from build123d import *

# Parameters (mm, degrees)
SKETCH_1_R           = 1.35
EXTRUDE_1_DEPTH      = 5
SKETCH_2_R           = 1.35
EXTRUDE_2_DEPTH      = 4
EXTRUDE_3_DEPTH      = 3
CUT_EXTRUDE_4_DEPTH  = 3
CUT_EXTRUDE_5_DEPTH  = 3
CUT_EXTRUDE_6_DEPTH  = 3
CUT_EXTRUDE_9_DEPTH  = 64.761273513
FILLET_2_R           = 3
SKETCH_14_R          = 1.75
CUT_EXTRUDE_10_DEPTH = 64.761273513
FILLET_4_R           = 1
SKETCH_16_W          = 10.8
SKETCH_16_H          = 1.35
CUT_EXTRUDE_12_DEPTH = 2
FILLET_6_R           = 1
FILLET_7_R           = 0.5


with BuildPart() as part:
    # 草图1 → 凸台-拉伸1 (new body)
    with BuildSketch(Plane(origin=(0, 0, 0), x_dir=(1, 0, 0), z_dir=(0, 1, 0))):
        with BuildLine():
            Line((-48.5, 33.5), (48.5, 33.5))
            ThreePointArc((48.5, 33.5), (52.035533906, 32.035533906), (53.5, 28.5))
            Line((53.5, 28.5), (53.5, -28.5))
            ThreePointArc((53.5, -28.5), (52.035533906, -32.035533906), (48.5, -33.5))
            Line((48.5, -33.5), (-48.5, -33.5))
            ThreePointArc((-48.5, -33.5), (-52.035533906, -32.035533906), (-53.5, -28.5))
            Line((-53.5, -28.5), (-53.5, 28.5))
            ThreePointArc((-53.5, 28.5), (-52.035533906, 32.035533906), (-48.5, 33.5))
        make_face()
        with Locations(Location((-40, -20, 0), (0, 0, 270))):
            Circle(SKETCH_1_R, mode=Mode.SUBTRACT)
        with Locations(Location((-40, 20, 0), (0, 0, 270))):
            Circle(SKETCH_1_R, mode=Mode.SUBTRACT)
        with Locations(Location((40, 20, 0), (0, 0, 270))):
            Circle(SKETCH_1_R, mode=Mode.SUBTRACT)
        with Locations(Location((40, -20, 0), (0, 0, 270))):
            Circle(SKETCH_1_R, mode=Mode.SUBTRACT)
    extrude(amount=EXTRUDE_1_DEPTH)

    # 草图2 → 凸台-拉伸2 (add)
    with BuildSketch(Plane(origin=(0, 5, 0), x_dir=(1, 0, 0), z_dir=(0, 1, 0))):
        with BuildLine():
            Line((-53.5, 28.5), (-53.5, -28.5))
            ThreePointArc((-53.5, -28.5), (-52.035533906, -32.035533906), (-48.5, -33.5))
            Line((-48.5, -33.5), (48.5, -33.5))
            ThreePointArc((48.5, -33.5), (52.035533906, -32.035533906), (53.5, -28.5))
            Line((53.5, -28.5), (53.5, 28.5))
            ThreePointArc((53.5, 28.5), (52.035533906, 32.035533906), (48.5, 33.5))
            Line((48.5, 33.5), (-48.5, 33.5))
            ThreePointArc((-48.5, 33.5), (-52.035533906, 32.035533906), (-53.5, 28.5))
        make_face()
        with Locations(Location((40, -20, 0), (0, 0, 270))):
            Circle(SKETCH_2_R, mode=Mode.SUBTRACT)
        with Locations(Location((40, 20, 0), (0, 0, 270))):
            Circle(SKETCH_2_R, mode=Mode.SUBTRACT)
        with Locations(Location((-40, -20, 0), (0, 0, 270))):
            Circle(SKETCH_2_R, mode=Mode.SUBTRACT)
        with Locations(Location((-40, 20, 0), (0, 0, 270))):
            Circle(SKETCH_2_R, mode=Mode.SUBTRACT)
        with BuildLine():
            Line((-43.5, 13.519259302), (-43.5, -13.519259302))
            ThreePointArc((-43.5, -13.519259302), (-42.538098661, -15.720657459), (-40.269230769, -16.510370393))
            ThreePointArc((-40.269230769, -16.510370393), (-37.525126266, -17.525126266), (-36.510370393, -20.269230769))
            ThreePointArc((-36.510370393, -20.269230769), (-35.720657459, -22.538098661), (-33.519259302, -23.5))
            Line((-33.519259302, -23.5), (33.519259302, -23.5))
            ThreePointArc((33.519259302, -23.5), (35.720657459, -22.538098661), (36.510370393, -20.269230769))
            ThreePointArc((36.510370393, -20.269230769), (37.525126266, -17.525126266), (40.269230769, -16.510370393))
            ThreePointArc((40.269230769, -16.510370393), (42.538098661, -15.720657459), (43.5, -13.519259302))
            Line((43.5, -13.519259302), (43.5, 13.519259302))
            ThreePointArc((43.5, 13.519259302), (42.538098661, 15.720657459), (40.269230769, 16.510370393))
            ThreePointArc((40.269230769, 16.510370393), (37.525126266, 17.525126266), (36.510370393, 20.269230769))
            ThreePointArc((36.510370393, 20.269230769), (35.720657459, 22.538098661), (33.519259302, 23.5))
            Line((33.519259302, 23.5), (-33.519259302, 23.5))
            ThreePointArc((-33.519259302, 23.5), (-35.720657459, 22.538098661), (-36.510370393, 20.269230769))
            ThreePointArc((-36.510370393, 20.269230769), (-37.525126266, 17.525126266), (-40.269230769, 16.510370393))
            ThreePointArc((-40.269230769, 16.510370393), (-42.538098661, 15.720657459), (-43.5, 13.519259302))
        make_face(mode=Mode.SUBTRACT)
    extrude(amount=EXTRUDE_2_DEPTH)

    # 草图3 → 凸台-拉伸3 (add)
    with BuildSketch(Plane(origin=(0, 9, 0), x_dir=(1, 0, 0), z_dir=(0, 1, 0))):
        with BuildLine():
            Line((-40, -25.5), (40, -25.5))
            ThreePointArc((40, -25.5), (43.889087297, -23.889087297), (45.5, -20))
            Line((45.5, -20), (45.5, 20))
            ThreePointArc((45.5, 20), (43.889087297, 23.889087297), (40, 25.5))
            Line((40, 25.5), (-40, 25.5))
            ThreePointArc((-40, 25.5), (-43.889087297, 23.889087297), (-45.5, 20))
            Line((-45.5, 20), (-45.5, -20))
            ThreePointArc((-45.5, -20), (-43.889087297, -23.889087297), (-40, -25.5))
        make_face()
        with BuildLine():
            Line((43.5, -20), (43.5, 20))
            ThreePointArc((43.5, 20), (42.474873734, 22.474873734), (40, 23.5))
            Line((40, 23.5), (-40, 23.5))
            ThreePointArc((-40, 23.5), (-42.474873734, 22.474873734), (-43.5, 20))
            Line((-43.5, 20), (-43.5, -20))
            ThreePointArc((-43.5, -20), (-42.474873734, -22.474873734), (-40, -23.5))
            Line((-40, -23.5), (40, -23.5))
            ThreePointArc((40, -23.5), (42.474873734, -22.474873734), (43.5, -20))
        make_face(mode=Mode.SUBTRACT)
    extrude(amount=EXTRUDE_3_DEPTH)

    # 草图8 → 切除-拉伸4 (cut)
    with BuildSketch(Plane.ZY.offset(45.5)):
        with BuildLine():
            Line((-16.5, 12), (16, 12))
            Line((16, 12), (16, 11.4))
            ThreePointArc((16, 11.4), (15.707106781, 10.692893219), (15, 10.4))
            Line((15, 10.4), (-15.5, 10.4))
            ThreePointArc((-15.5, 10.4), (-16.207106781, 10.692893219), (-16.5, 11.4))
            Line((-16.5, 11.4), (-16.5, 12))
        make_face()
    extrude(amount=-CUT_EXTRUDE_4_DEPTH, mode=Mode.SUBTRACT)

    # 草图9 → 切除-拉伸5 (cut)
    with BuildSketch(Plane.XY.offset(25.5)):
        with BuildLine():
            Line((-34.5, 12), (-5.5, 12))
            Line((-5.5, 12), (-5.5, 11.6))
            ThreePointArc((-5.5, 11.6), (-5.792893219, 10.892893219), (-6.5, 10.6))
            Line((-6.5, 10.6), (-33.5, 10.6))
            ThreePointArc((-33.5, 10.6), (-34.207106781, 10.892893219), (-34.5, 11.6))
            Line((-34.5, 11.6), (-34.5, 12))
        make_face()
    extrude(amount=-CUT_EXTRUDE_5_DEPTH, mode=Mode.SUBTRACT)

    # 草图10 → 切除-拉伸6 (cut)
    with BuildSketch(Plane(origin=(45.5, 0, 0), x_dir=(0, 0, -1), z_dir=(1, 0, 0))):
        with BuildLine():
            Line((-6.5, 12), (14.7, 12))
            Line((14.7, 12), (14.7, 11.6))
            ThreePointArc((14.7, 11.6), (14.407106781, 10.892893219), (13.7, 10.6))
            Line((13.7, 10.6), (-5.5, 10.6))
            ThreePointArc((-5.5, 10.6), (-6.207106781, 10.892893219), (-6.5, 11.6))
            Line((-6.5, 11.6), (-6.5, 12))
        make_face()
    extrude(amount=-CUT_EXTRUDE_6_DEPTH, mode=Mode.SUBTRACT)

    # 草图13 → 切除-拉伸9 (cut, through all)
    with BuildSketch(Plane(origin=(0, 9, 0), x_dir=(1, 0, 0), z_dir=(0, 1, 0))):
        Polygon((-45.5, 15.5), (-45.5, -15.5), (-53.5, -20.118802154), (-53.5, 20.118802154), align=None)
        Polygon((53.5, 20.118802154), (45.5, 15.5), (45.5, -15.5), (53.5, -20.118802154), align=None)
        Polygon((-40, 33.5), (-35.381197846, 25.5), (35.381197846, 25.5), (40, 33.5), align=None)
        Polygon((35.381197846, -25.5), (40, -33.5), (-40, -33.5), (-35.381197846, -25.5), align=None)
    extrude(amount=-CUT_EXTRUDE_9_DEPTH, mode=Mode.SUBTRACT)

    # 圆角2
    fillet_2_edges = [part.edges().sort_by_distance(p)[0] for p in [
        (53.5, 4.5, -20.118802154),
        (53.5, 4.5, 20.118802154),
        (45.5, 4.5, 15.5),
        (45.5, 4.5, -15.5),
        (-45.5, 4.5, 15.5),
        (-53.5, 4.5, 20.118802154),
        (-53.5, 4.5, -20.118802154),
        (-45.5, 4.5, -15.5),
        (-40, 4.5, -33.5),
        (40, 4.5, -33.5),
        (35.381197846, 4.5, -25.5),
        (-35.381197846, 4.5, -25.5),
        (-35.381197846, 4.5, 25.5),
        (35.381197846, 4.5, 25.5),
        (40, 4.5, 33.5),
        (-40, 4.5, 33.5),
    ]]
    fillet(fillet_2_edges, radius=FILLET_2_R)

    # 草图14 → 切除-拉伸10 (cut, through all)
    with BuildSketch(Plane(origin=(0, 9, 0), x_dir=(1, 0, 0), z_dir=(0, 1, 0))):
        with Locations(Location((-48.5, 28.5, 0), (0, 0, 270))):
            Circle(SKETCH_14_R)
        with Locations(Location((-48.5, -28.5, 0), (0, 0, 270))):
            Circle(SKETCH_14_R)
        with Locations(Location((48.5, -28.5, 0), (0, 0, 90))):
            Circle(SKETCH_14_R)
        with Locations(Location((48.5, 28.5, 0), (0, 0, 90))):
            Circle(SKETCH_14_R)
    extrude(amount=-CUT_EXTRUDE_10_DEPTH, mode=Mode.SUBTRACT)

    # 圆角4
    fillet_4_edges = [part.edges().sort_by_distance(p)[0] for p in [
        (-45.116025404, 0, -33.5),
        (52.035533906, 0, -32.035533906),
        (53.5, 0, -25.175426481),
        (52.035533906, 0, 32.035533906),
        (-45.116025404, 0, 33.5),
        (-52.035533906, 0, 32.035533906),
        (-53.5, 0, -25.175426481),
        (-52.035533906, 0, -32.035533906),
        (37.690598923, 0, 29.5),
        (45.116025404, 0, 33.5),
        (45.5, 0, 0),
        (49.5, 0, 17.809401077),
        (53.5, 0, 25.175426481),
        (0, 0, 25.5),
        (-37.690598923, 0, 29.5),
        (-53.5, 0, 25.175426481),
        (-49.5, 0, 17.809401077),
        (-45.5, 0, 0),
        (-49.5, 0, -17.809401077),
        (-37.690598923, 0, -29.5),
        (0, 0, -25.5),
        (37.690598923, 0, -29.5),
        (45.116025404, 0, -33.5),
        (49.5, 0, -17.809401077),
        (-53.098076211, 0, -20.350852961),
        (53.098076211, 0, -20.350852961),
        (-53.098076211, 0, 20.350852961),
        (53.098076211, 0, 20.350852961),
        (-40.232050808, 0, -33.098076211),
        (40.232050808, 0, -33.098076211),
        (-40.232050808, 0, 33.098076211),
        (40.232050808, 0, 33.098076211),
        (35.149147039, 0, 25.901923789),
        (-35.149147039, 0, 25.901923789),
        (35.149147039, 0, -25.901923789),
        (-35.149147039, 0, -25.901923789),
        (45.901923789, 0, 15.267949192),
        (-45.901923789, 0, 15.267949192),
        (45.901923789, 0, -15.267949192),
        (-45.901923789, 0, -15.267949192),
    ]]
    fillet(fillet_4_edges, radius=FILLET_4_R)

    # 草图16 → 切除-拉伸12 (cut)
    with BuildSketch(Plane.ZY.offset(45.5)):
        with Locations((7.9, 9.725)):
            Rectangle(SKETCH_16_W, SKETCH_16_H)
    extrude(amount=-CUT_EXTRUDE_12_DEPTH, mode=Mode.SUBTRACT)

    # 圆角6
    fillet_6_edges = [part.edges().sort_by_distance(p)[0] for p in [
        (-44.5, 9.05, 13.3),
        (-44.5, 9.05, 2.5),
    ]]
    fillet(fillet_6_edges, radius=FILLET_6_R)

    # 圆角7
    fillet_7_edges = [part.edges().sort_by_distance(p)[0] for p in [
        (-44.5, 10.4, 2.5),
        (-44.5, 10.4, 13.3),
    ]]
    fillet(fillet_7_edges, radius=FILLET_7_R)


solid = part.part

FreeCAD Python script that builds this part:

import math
import FreeCAD as App
import Part
import Sketcher
from FreeCAD import Vector
Q = App.Units.Quantity


def edges_at(feature, points):
    """Names of the edges that pass closest to the given points."""
    edges = feature.Shape.Edges
    near = lambda p: min(range(len(edges)), key=lambda i: edges[i].distToShape(Part.Vertex(*p))[0])
    return sorted({f"Edge{near(p) + 1}" for p in points})

doc = App.newDocument("Part")
body = doc.addObject("PartDesign::Body", "Body")

# Sketch on XZ plane
sketch1 = body.newObject("Sketcher::SketchObject", "Sketch")
sketch1.AttachmentSupport = (doc.getObject("XZ_Plane"), [""])
sketch1.MapMode = "FlatFace"
sketch1.addGeometry([
    Part.LineSegment(Vector(48.5, -33.5, 0), Vector(-48.5, -33.5, 0)),  # 0
    Part.ArcOfCircle(Part.Circle(Vector(-48.5, -28.5, 0), Vector(0, 0, 1), 5), math.radians(180), math.radians(270)),  # 1
    Part.LineSegment(Vector(-53.5, -28.5, 0), Vector(-53.5, 28.5, 0)),  # 2
    Part.ArcOfCircle(Part.Circle(Vector(-48.5, 28.5, 0), Vector(0, 0, 1), 5), math.radians(90), math.radians(180)),  # 3
    Part.LineSegment(Vector(-48.5, 33.5, 0), Vector(48.5, 33.5, 0)),  # 4
    Part.ArcOfCircle(Part.Circle(Vector(48.5, 28.5, 0), Vector(0, 0, 1), 5), math.radians(0), math.radians(90)),  # 5
    Part.LineSegment(Vector(53.5, 28.5, 0), Vector(53.5, -28.5, 0)),  # 6
    Part.ArcOfCircle(Part.Circle(Vector(48.5, -28.5, 0), Vector(0, 0, 1), 5), math.radians(-90), math.radians(0)),  # 7
    Part.Circle(Vector(40, 20, 0), Vector(0, 0, 1), 1.4),  # 8
    Part.Circle(Vector(-40, 20, 0), Vector(0, 0, 1), 1.4),  # 9
    Part.Circle(Vector(40, -20, 0), Vector(0, 0, 1), 1.4),  # 10
    Part.Circle(Vector(-40, -20, 0), Vector(0, 0, 1), 1.4),  # 11
], False)
sketch1.addConstraint([
    Sketcher.Constraint("Tangent", 0, 2, 1, 2),
    Sketcher.Constraint("Tangent", 1, 1, 2, 1),
    Sketcher.Constraint("Tangent", 2, 2, 3, 2),
    Sketcher.Constraint("Tangent", 3, 1, 4, 1),
    Sketcher.Constraint("Tangent", 4, 2, 5, 2),
    Sketcher.Constraint("Tangent", 5, 1, 6, 1),
    Sketcher.Constraint("Tangent", 6, 2, 7, 2),
    Sketcher.Constraint("Tangent", 7, 1, 0, 1),
    Sketcher.Constraint("Horizontal", 0),
    Sketcher.Constraint("Vertical", 2),
    Sketcher.Constraint("Horizontal", 4),
    Sketcher.Constraint("Vertical", 6),
    Sketcher.Constraint("Equal", 1, 3),
    Sketcher.Constraint("Equal", 3, 5),
    Sketcher.Constraint("Equal", 5, 7),
    Sketcher.Constraint("Equal", 8, 9),
    Sketcher.Constraint("Equal", 9, 10),
    Sketcher.Constraint("Equal", 10, 11),
    Sketcher.Constraint("Symmetric", 1, 3, 5, 3, -1, 1),
    Sketcher.Constraint("Symmetric", 9, 3, 10, 3, -1, 1),
    Sketcher.Constraint("Symmetric", 8, 3, 11, 3, -1, 1),
    Sketcher.Constraint("Symmetric", 8, 3, 9, 3, -2),
    Sketcher.Constraint("Radius", 1, Q("5 mm")),
    Sketcher.Constraint("Diameter", 8, Q("2.7 mm")),
    Sketcher.Constraint("DistanceX", 0, 2, 0, 1, Q("97 mm")),
    Sketcher.Constraint("DistanceY", 2, 1, 2, 2, Q("57 mm")),
    Sketcher.Constraint("DistanceX", -1, 1, 8, 3, Q("40 mm")),
    Sketcher.Constraint("DistanceY", -1, 1, 8, 3, Q("20 mm")),
])
pad1 = body.newObject("PartDesign::Pad", "Pad")
pad1.Profile = sketch1
pad1.Length = 5
pad1.Reversed = True

# Sketch on XZ plane
sketch2 = body.newObject("Sketcher::SketchObject", "Sketch001")
sketch2.AttachmentSupport = (doc.getObject("XZ_Plane"), [""])
sketch2.MapMode = "FlatFace"
sketch2.AttachmentOffset = App.Placement(Vector(0, 0, -5), App.Rotation())
sketch2.addGeometry([
    Part.LineSegment(Vector(-53.5, -28.5, 0), Vector(-53.5, 28.5, 0)),  # 0
    Part.ArcOfCircle(Part.Circle(Vector(-48.5, 28.5, 0), Vector(0, 0, 1), 5), math.radians(90), math.radians(180)),  # 1
    Part.LineSegment(Vector(-48.5, 33.5, 0), Vector(48.5, 33.5, 0)),  # 2
    Part.ArcOfCircle(Part.Circle(Vector(48.5, 28.5, 0), Vector(0, 0, 1), 5), math.radians(0), math.radians(90)),  # 3
    Part.LineSegment(Vector(53.5, 28.5, 0), Vector(53.5, -28.5, 0)),  # 4
    Part.ArcOfCircle(Part.Circle(Vector(48.5, -28.5, 0), Vector(0, 0, 1), 5), math.radians(-90), math.radians(0)),  # 5
    Part.LineSegment(Vector(48.5, -33.5, 0), Vector(-48.5, -33.5, 0)),  # 6
    Part.ArcOfCircle(Part.Circle(Vector(-48.5, -28.5, 0), Vector(0, 0, 1), 5), math.radians(180), math.radians(270)),  # 7
    Part.Circle(Vector(-40, 20, 0), Vector(0, 0, 1), 1.4),  # 8
    Part.Circle(Vector(40, 20, 0), Vector(0, 0, 1), 1.4),  # 9
    Part.Circle(Vector(-40, -20, 0), Vector(0, 0, 1), 1.4),  # 10
    Part.LineSegment(Vector(-43.5, 13.5, 0), Vector(-43.5, -13.5, 0)),  # 11
    Part.ArcOfCircle(Part.Circle(Vector(-40.5, -13.5, 0), Vector(0, 0, 1), 3), math.radians(-180), math.radians(-86)),  # 12
    Part.ArcOfCircle(Part.Circle(Vector(-40, -20, 0), Vector(0, 0, 1), 3.5), math.radians(-4), math.radians(94)),  # 13
    Part.ArcOfCircle(Part.Circle(Vector(-33.5, -20.5, 0), Vector(0, 0, 1), 3), math.radians(176), math.radians(270)),  # 14
    Part.LineSegment(Vector(-33.5, -23.5, 0), Vector(33.5, -23.5, 0)),  # 15
    Part.ArcOfCircle(Part.Circle(Vector(33.5, -20.5, 0), Vector(0, 0, 1), 3), math.radians(-90), math.radians(4)),  # 16
    Part.ArcOfCircle(Part.Circle(Vector(40, -20, 0), Vector(0, 0, 1), 3.5), math.radians(86), math.radians(184)),  # 17
    Part.ArcOfCircle(Part.Circle(Vector(40.5, -13.5, 0), Vector(0, 0, 1), 3), math.radians(-94), math.radians(0)),  # 18
    Part.LineSegment(Vector(43.5, -13.5, 0), Vector(43.5, 13.5, 0)),  # 19
    Part.ArcOfCircle(Part.Circle(Vector(40.5, 13.5, 0), Vector(0, 0, 1), 3), math.radians(0), math.radians(94)),  # 20
    Part.ArcOfCircle(Part.Circle(Vector(40, 20, 0), Vector(0, 0, 1), 3.5), math.radians(176), math.radians(274)),  # 21
    Part.ArcOfCircle(Part.Circle(Vector(33.5, 20.5, 0), Vector(0, 0, 1), 3), math.radians(-4), math.radians(90)),  # 22
    Part.LineSegment(Vector(33.5, 23.5, 0), Vector(-33.5, 23.5, 0)),  # 23
    Part.ArcOfCircle(Part.Circle(Vector(-33.5, 20.5, 0), Vector(0, 0, 1), 3), math.radians(90), math.radians(184)),  # 24
    Part.ArcOfCircle(Part.Circle(Vector(-40, 20, 0), Vector(0, 0, 1), 3.5), math.radians(-94), math.radians(4)),  # 25
    Part.ArcOfCircle(Part.Circle(Vector(-40.5, 13.5, 0), Vector(0, 0, 1), 3), math.radians(86), math.radians(180)),  # 26
    Part.Circle(Vector(40, -20, 0), Vector(0, 0, 1), 1.4),  # 27
], False)
sketch2.addConstraint([
    Sketcher.Constraint("Tangent", 0, 2, 1, 2),
    Sketcher.Constraint("Tangent", 1, 1, 2, 1),
    Sketcher.Constraint("Tangent", 2, 2, 3, 2),
    Sketcher.Constraint("Tangent", 3, 1, 4, 1),
    Sketcher.Constraint("Tangent", 4, 2, 5, 2),
    Sketcher.Constraint("Tangent", 5, 1, 6, 1),
    Sketcher.Constraint("Tangent", 6, 2, 7, 2),
    Sketcher.Constraint("Tangent", 7, 1, 0, 1),
    Sketcher.Constraint("Tangent", 11, 2, 12, 1),
    Sketcher.Constraint("Tangent", 12, 2, 13, 2),
    Sketcher.Constraint("Tangent", 13, 1, 14, 1),
    Sketcher.Constraint("Tangent", 14, 2, 15, 1),
    Sketcher.Constraint("Tangent", 15, 2, 16, 1),
    Sketcher.Constraint("Tangent", 16, 2, 17, 2),
    Sketcher.Constraint("Tangent", 17, 1, 18, 1),
    Sketcher.Constraint("Tangent", 18, 2, 19, 1),
    Sketcher.Constraint("Tangent", 19, 2, 20, 1),
    Sketcher.Constraint("Tangent", 20, 2, 21, 2),
    Sketcher.Constraint("Tangent", 21, 1, 22, 1),
    Sketcher.Constraint("Tangent", 22, 2, 23, 1),
    Sketcher.Constraint("Tangent", 23, 2, 24, 1),
    Sketcher.Constraint("Tangent", 24, 2, 25, 2),
    Sketcher.Constraint("Tangent", 25, 1, 26, 1),
    Sketcher.Constraint("Tangent", 26, 2, 11, 1),
    Sketcher.Constraint("Vertical", 0),
    Sketcher.Constraint("Horizontal", 2),
    Sketcher.Constraint("Vertical", 4),
    Sketcher.Constraint("Horizontal", 6),
    Sketcher.Constraint("Vertical", 11),
    Sketcher.Constraint("Horizontal", 15),
    Sketcher.Constraint("Vertical", 19),
    Sketcher.Constraint("Horizontal", 23),
    Sketcher.Constraint("Coincident", 13, 3, 10, 3),
    Sketcher.Constraint("Coincident", 21, 3, 9, 3),
    Sketcher.Constraint("Coincident", 25, 3, 8, 3),
    Sketcher.Constraint("Coincident", 27, 3, 17, 3),
    Sketcher.Constraint("Equal", 1, 3),
    Sketcher.Constraint("Equal", 3, 5),
    Sketcher.Constraint("Equal", 5, 7),
    Sketcher.Constraint("Equal", 8, 9),
    Sketcher.Constraint("Equal", 9, 10),
    Sketcher.Constraint("Equal", 12, 14),
    Sketcher.Constraint("Equal", 14, 16),
    Sketcher.Constraint("Equal", 13, 17),
    Sketcher.Constraint("Equal", 16, 18),
    Sketcher.Constraint("Equal", 18, 20),
    Sketcher.Constraint("Equal", 17, 21),
    Sketcher.Constraint("Equal", 20, 22),
    Sketcher.Constraint("Equal", 22, 24),
    Sketcher.Constraint("Equal", 21, 25),
    Sketcher.Constraint("Equal", 24, 26),
    Sketcher.Constraint("Equal", 10, 27),
    Sketcher.Constraint("Symmetric", 1, 3, 5, 3, -1, 1),
    Sketcher.Constraint("Symmetric", 9, 3, 10, 3, -1, 1),
    Sketcher.Constraint("Symmetric", 8, 3, 17, 3, -1, 1),
    Sketcher.Constraint("Symmetric", 8, 3, 9, 3, -2),
    Sketcher.Constraint("Horizontal", 12, 3, 18, 3),
    Sketcher.Constraint("Vertical", 16, 3, 22, 3),
    Sketcher.Constraint("Radius", 1, Q("5 mm")),
    Sketcher.Constraint("Radius", 12, Q("3 mm")),
    Sketcher.Constraint("Diameter", 8, Q("2.7 mm")),
    Sketcher.Constraint("Radius", 13, Q("3.5 mm")),
    Sketcher.Constraint("DistanceX", 2, 1, 2, 2, Q("97 mm")),
    Sketcher.Constraint("DistanceY", 0, 1, 0, 2, Q("57 mm")),
    Sketcher.Constraint("DistanceX", 8, 3, -1, 1, Q("40 mm")),
    Sketcher.Constraint("DistanceY", -1, 1, 8, 3, Q("20 mm")),
    Sketcher.Constraint("DistanceX", 7, 3, 12, 3, Q("8 mm")),
    Sketcher.Constraint("DistanceY", 7, 3, 14, 3, Q("8 mm")),
])
pad2 = body.newObject("PartDesign::Pad", "Pad001")
pad2.Profile = sketch2
pad2.Length = 4
pad2.Reversed = True

# Sketch on XZ plane
sketch3 = body.newObject("Sketcher::SketchObject", "Sketch002")
sketch3.AttachmentSupport = (doc.getObject("XZ_Plane"), [""])
sketch3.MapMode = "FlatFace"
sketch3.AttachmentOffset = App.Placement(Vector(0, 0, -9), App.Rotation())
sketch3.addGeometry([
    Part.LineSegment(Vector(-40, 25.5, 0), Vector(40, 25.5, 0)),  # 0
    Part.ArcOfCircle(Part.Circle(Vector(40, 20, 0), Vector(0, 0, 1), 5.5), math.radians(0), math.radians(90)),  # 1
    Part.LineSegment(Vector(45.5, 20, 0), Vector(45.5, -20, 0)),  # 2
    Part.ArcOfCircle(Part.Circle(Vector(40, -20, 0), Vector(0, 0, 1), 5.5), math.radians(-90), math.radians(0)),  # 3
    Part.LineSegment(Vector(40, -25.5, 0), Vector(-40, -25.5, 0)),  # 4
    Part.ArcOfCircle(Part.Circle(Vector(-40, -20, 0), Vector(0, 0, 1), 5.5), math.radians(180), math.radians(270)),  # 5
    Part.LineSegment(Vector(-45.5, -20, 0), Vector(-45.5, 20, 0)),  # 6
    Part.ArcOfCircle(Part.Circle(Vector(-40, 20, 0), Vector(0, 0, 1), 5.5), math.radians(90), math.radians(180)),  # 7
    Part.LineSegment(Vector(43.5, -20, 0), Vector(43.5, 20, 0)),  # 8
    Part.ArcOfCircle(Part.Circle(Vector(40, 20, 0), Vector(0, 0, 1), 3.5), math.radians(0), math.radians(90)),  # 9
    Part.LineSegment(Vector(40, 23.5, 0), Vector(-40, 23.5, 0)),  # 10
    Part.ArcOfCircle(Part.Circle(Vector(-40, 20, 0), Vector(0, 0, 1), 3.5), math.radians(90), math.radians(180)),  # 11
    Part.LineSegment(Vector(-43.5, 20, 0), Vector(-43.5, -20, 0)),  # 12
    Part.ArcOfCircle(Part.Circle(Vector(-40, -20, 0), Vector(0, 0, 1), 3.5), math.radians(-180), math.radians(-90)),  # 13
    Part.LineSegment(Vector(-40, -23.5, 0), Vector(40, -23.5, 0)),  # 14
    Part.ArcOfCircle(Part.Circle(Vector(40, -20, 0), Vector(0, 0, 1), 3.5), math.radians(-90), math.radians(0)),  # 15
], False)
sketch3.addConstraint([
    Sketcher.Constraint("Tangent", 0, 2, 1, 2),
    Sketcher.Constraint("Tangent", 1, 1, 2, 1),
    Sketcher.Constraint("Tangent", 2, 2, 3, 2),
    Sketcher.Constraint("Tangent", 3, 1, 4, 1),
    Sketcher.Constraint("Tangent", 4, 2, 5, 2),
    Sketcher.Constraint("Tangent", 5, 1, 6, 1),
    Sketcher.Constraint("Tangent", 6, 2, 7, 2),
    Sketcher.Constraint("Tangent", 7, 1, 0, 1),
    Sketcher.Constraint("Tangent", 8, 2, 9, 1),
    Sketcher.Constraint("Tangent", 9, 2, 10, 1),
    Sketcher.Constraint("Tangent", 10, 2, 11, 1),
    Sketcher.Constraint("Tangent", 11, 2, 12, 1),
    Sketcher.Constraint("Tangent", 12, 2, 13, 1),
    Sketcher.Constraint("Tangent", 13, 2, 14, 1),
    Sketcher.Constraint("Tangent", 14, 2, 15, 1),
    Sketcher.Constraint("Tangent", 15, 2, 8, 1),
    Sketcher.Constraint("Horizontal", 0),
    Sketcher.Constraint("Vertical", 2),
    Sketcher.Constraint("Horizontal", 4),
    Sketcher.Constraint("Vertical", 6),
    Sketcher.Constraint("Vertical", 8),
    Sketcher.Constraint("Horizontal", 10),
    Sketcher.Constraint("Vertical", 12),
    Sketcher.Constraint("Horizontal", 14),
    Sketcher.Constraint("Coincident", 9, 3, 1, 3),
    Sketcher.Constraint("Coincident", 11, 3, 7, 3),
    Sketcher.Constraint("Coincident", 13, 3, 5, 3),
    Sketcher.Constraint("Equal", 1, 3),
    Sketcher.Constraint("Equal", 3, 5),
    Sketcher.Constraint("Equal", 5, 7),
    Sketcher.Constraint("Equal", 13, 15),
    Sketcher.Constraint("Symmetric", 1, 3, 5, 3, -1, 1),
    Sketcher.Constraint("Radius", 1, Q("5.5 mm")),
    Sketcher.Constraint("Radius", 9, Q("3.5 mm")),
    Sketcher.Constraint("DistanceX", 0, 1, 0, 2, Q("80 mm")),
    Sketcher.Constraint("DistanceY", 2, 2, 2, 1, Q("40 mm")),
])
pad3 = body.newObject("PartDesign::Pad", "Pad002")
pad3.Profile = sketch3
pad3.Length = 3
pad3.Reversed = True

# Sketch on YZ plane
sketch4 = body.newObject("Sketcher::SketchObject", "Sketch003")
sketch4.AttachmentSupport = (doc.getObject("YZ_Plane"), [""])
sketch4.MapMode = "FlatFace"
sketch4.AttachmentOffset = App.Placement(Vector(0, 0, -45.5), App.Rotation())
sketch4.addGeometry([
    Part.LineSegment(Vector(12, 16, 0), Vector(12, -16.5, 0)),  # 0
    Part.LineSegment(Vector(12, -16.5, 0), Vector(11.4, -16.5, 0)),  # 1
    Part.ArcOfCircle(Part.Circle(Vector(11.4, -15.5, 0), Vector(0, 0, 1), 1), math.radians(-180), math.radians(-90)),  # 2
    Part.LineSegment(Vector(10.4, -15.5, 0), Vector(10.4, 15, 0)),  # 3
    Part.ArcOfCircle(Part.Circle(Vector(11.4, 15, 0), Vector(0, 0, 1), 1), math.radians(90), math.radians(180)),  # 4
    Part.LineSegment(Vector(11.4, 16, 0), Vector(12, 16, 0)),  # 5
], False)
sketch4.addConstraint([
    Sketcher.Constraint("Coincident", 0, 2, 1, 1),
    Sketcher.Constraint("Tangent", 1, 2, 2, 2),
    Sketcher.Constraint("Tangent", 2, 1, 3, 1),
    Sketcher.Constraint("Tangent", 3, 2, 4, 2),
    Sketcher.Constraint("Tangent", 4, 1, 5, 1),
    Sketcher.Constraint("Coincident", 5, 2, 0, 1),
    Sketcher.Constraint("Vertical", 0),
    Sketcher.Constraint("Horizontal", 1),
    Sketcher.Constraint("Vertical", 3),
    Sketcher.Constraint("Horizontal", 5),
    Sketcher.Constraint("Equal", 2, 4),
    Sketcher.Constraint("Radius", 2, Q("1 mm")),
    Sketcher.Constraint("DistanceX", 1, 2, 1, 1, Q("0.6 mm")),
    Sketcher.Constraint("DistanceY", 0, 2, 0, 1, Q("32.5 mm")),
    Sketcher.Constraint("DistanceY", -1, 1, 4, 3, Q("15 mm")),
    Sketcher.Constraint("DistanceX", -1, 1, 0, 2, Q("12 mm")),
])
pocket1 = body.newObject("PartDesign::Pocket", "Pocket")
pocket1.Profile = sketch4
pocket1.Length = 3
pocket1.Reversed = True

# Sketch on XY plane
sketch5 = body.newObject("Sketcher::SketchObject", "Sketch004")
sketch5.AttachmentSupport = (doc.getObject("XY_Plane"), [""])
sketch5.MapMode = "FlatFace"
sketch5.AttachmentOffset = App.Placement(Vector(0, 0, 25.5), App.Rotation())
sketch5.addGeometry([
    Part.LineSegment(Vector(-5.5, 12, 0), Vector(-34.5, 12, 0)),  # 0
    Part.LineSegment(Vector(-34.5, 12, 0), Vector(-34.5, 11.6, 0)),  # 1
    Part.ArcOfCircle(Part.Circle(Vector(-33.5, 11.6, 0), Vector(0, 0, 1), 1), math.radians(-180), math.radians(-90)),  # 2
    Part.LineSegment(Vector(-33.5, 10.6, 0), Vector(-6.5, 10.6, 0)),  # 3
    Part.ArcOfCircle(Part.Circle(Vector(-6.5, 11.6, 0), Vector(0, 0, 1), 1), math.radians(-90), math.radians(0)),  # 4
    Part.LineSegment(Vector(-5.5, 11.6, 0), Vector(-5.5, 12, 0)),  # 5
], False)
sketch5.addConstraint([
    Sketcher.Constraint("Coincident", 0, 2, 1, 1),
    Sketcher.Constraint("Tangent", 1, 2, 2, 1),
    Sketcher.Constraint("Tangent", 2, 2, 3, 1),
    Sketcher.Constraint("Tangent", 3, 2, 4, 1),
    Sketcher.Constraint("Tangent", 4, 2, 5, 1),
    Sketcher.Constraint("Coincident", 5, 2, 0, 1),
    Sketcher.Constraint("Horizontal", 0),
    Sketcher.Constraint("Vertical", 1),
    Sketcher.Constraint("Horizontal", 3),
    Sketcher.Constraint("Vertical", 5),
    Sketcher.Constraint("Equal", 2, 4),
    Sketcher.Constraint("Radius", 2, Q("1 mm")),
    Sketcher.Constraint("DistanceX", 0, 2, 0, 1, Q("29 mm")),
    Sketcher.Constraint("DistanceY", 1, 2, 1, 1, Q("0.4 mm")),
    Sketcher.Constraint("DistanceY", -1, 1, 0, 2, Q("12 mm")),
    Sketcher.Constraint("DistanceX", 2, 3, -1, 1, Q("33.5 mm")),
])
pocket2 = body.newObject("PartDesign::Pocket", "Pocket001")
pocket2.Profile = sketch5
pocket2.Length = 3

# Sketch on YZ plane
sketch6 = body.newObject("Sketcher::SketchObject", "Sketch005")
sketch6.AttachmentSupport = (doc.getObject("YZ_Plane"), [""])
sketch6.MapMode = "FlatFace"
sketch6.AttachmentOffset = App.Placement(Vector(0, 0, 45.5), App.Rotation())
sketch6.addGeometry([
    Part.LineSegment(Vector(12, -14.7, 0), Vector(12, 6.5, 0)),  # 0
    Part.LineSegment(Vector(12, 6.5, 0), Vector(11.6, 6.5, 0)),  # 1
    Part.ArcOfCircle(Part.Circle(Vector(11.6, 5.5, 0), Vector(0, 0, 1), 1), math.radians(90), math.radians(180)),  # 2
    Part.LineSegment(Vector(10.6, 5.5, 0), Vector(10.6, -13.7, 0)),  # 3
    Part.ArcOfCircle(Part.Circle(Vector(11.6, -13.7, 0), Vector(0, 0, 1), 1), math.radians(-180), math.radians(-90)),  # 4
    Part.LineSegment(Vector(11.6, -14.7, 0), Vector(12, -14.7, 0)),  # 5
], False)
sketch6.addConstraint([
    Sketcher.Constraint("Coincident", 0, 2, 1, 1),
    Sketcher.Constraint("Tangent", 1, 2, 2, 1),
    Sketcher.Constraint("Tangent", 2, 2, 3, 1),
    Sketcher.Constraint("Tangent", 3, 2, 4, 1),
    Sketcher.Constraint("Tangent", 4, 2, 5, 1),
    Sketcher.Constraint("Coincident", 5, 2, 0, 1),
    Sketcher.Constraint("Vertical", 0),
    Sketcher.Constraint("Horizontal", 1),
    Sketcher.Constraint("Vertical", 3),
    Sketcher.Constraint("Horizontal", 5),
    Sketcher.Constraint("Equal", 2, 4),
    Sketcher.Constraint("Radius", 2, Q("1 mm")),
    Sketcher.Constraint("DistanceX", 1, 2, 1, 1, Q("0.4 mm")),
    Sketcher.Constraint("DistanceY", 0, 1, 0, 2, Q("21.2 mm")),
    Sketcher.Constraint("DistanceX", -1, 1, 0, 2, Q("12 mm")),
    Sketcher.Constraint("DistanceY", -1, 1, 2, 3, Q("5.5 mm")),
])
pocket3 = body.newObject("PartDesign::Pocket", "Pocket002")
pocket3.Profile = sketch6
pocket3.Length = 3

# Sketch on XZ plane
sketch7 = body.newObject("Sketcher::SketchObject", "Sketch006")
sketch7.AttachmentSupport = (doc.getObject("XZ_Plane"), [""])
sketch7.MapMode = "FlatFace"
sketch7.AttachmentOffset = App.Placement(Vector(0, 0, -9), App.Rotation())
sketch7.addGeometry([
    Part.LineSegment(Vector(-46, 16, 0), Vector(-46, -16, 0)),  # 0
    Part.LineSegment(Vector(-46, -16, 0), Vector(-54, -20, 0)),  # 1
    Part.LineSegment(Vector(-54, -20, 0), Vector(-54, 20, 0)),  # 2
    Part.LineSegment(Vector(-54, 20, 0), Vector(-46, 16, 0)),  # 3
    Part.LineSegment(Vector(54, -20, 0), Vector(46, -16, 0)),  # 4
    Part.LineSegment(Vector(46, -16, 0), Vector(46, 16, 0)),  # 5
    Part.LineSegment(Vector(46, 16, 0), Vector(54, 20, 0)),  # 6
    Part.LineSegment(Vector(54, 20, 0), Vector(54, -20, 0)),  # 7
    Part.LineSegment(Vector(-40, -34, 0), Vector(-35, -26, 0)),  # 8
    Part.LineSegment(Vector(-35, -26, 0), Vector(35, -26, 0)),  # 9
    Part.LineSegment(Vector(35, -26, 0), Vector(40, -34, 0)),  # 10
    Part.LineSegment(Vector(40, -34, 0), Vector(-40, -34, 0)),  # 11
    Part.LineSegment(Vector(40, 34, 0), Vector(35, 26, 0)),  # 12
    Part.LineSegment(Vector(35, 26, 0), Vector(-35, 26, 0)),  # 13
    Part.LineSegment(Vector(-35, 26, 0), Vector(-40, 34, 0)),  # 14
    Part.LineSegment(Vector(-40, 34, 0), Vector(40, 34, 0)),  # 15
], False)
sketch7.addConstraint([
    Sketcher.Constraint("Coincident", 0, 2, 1, 1),
    Sketcher.Constraint("Coincident", 1, 2, 2, 1),
    Sketcher.Constraint("Coincident", 2, 2, 3, 1),
    Sketcher.Constraint("Coincident", 3, 2, 0, 1),
    Sketcher.Constraint("Coincident", 4, 2, 5, 1),
    Sketcher.Constraint("Coincident", 5, 2, 6, 1),
    Sketcher.Constraint("Coincident", 6, 2, 7, 1),
    Sketcher.Constraint("Coincident", 7, 2, 4, 1),
    Sketcher.Constraint("Coincident", 8, 2, 9, 1),
    Sketcher.Constraint("Coincident", 9, 2, 10, 1),
    Sketcher.Constraint("Coincident", 10, 2, 11, 1),
    Sketcher.Constraint("Coincident", 11, 2, 8, 1),
    Sketcher.Constraint("Coincident", 12, 2, 13, 1),
    Sketcher.Constraint("Coincident", 13, 2, 14, 1),
    Sketcher.Constraint("Coincident", 14, 2, 15, 1),
    Sketcher.Constraint("Coincident", 15, 2, 12, 1),
    Sketcher.Constraint("Vertical", 0),
    Sketcher.Constraint("Vertical", 2),
    Sketcher.Constraint("Vertical", 5),
    Sketcher.Constraint("Vertical", 7),
    Sketcher.Constraint("Horizontal", 9),
    Sketcher.Constraint("Horizontal", 11),
    Sketcher.Constraint("Horizontal", 13),
    Sketcher.Constraint("Horizontal", 15),
    Sketcher.Constraint("Symmetric", 3, 2, 4, 2, -1, 1),
    Sketcher.Constraint("Symmetric", 1, 2, 6, 2, -1, 1),
    Sketcher.Constraint("Symmetric", 8, 2, 12, 2, -1, 1),
    Sketcher.Constraint("Symmetric", 10, 2, 14, 2, -1, 1),
    Sketcher.Constraint("Parallel", 3, 4),
    Sketcher.Constraint("Parallel", 1, 6),
    Sketcher.Constraint("Perpendicular", 4, 8),
    Sketcher.Constraint("Perpendicular", 6, 10),
    Sketcher.Constraint("Parallel", 8, 12),
    Sketcher.Constraint("Parallel", 10, 14),
    Sketcher.Constraint("Horizontal", 0, 2, 4, 2),
    Sketcher.Constraint("Horizontal", 2, 2, 6, 2),
    Sketcher.Constraint("Vertical", 9, 2, 12, 2),
    Sketcher.Constraint("Equal", 6, 8),
    Sketcher.Constraint("DistanceX", 11, 2, 11, 1, Q("80 mm")),
    Sketcher.Constraint("DistanceY", 0, 2, 0, 1, Q("31 mm")),
    Sketcher.Constraint("Angle", 1, Q("-150 deg")),
    Sketcher.Constraint("DistanceX", 1, 2, 0, 2, Q("8 mm")),
    Sketcher.Constraint("DistanceX", 0, 2, 4, 2, Q("91 mm")),
    Sketcher.Constraint("DistanceY", 8, 2, 0, 2, Q("10 mm")),
])
pocket4 = body.newObject("PartDesign::Pocket", "Pocket003")
pocket4.Profile = sketch7
pocket4.Type = "ThroughAll"
pocket4.Reversed = True
doc.recompute()

fillet = body.newObject("PartDesign::Fillet", "Fillet")
fillet.Base = (pocket4, edges_at(pocket4, [
    (53.5, 4.5, -20.119),
    (53.5, 4.5, 20.119),
    (45.5, 4.5, 15.5),
    (45.5, 4.5, -15.5),
    (-45.5, 4.5, 15.5),
    (-53.5, 4.5, 20.119),
    (-53.5, 4.5, -20.119),
    (-45.5, 4.5, -15.5),
    (-40, 4.5, -33.5),
    (40, 4.5, -33.5),
    (35.381, 4.5, -25.5),
    (-35.381, 4.5, -25.5),
    (-35.381, 4.5, 25.5),
    (35.381, 4.5, 25.5),
    (40, 4.5, 33.5),
    (-40, 4.5, 33.5),
]))
fillet.Radius = 3

# Sketch on XZ plane
sketch8 = body.newObject("Sketcher::SketchObject", "Sketch007")
sketch8.AttachmentSupport = (doc.getObject("XZ_Plane"), [""])
sketch8.MapMode = "FlatFace"
sketch8.AttachmentOffset = App.Placement(Vector(0, 0, -9), App.Rotation())
sketch8.addGeometry([
    Part.Circle(Vector(-48.5, -28.5, 0), Vector(0, 0, 1), 1.8),
    Part.Circle(Vector(-48.5, 28.5, 0), Vector(0, 0, 1), 1.8),
    Part.Circle(Vector(48.5, 28.5, 0), Vector(0, 0, 1), 1.8),
    Part.Circle(Vector(48.5, -28.5, 0), Vector(0, 0, 1), 1.8),
], False)
sketch8.addConstraint([
    Sketcher.Constraint("Equal", 0, 1),
    Sketcher.Constraint("Equal", 1, 2),
    Sketcher.Constraint("Equal", 2, 3),
    Sketcher.Constraint("Symmetric", 0, 3, 2, 3, -1, 1),
    Sketcher.Constraint("Symmetric", 1, 3, 3, 3, -1, 1),
    Sketcher.Constraint("Symmetric", 1, 3, 2, 3, -2),
    Sketcher.Constraint("Diameter", 0, Q("3.5 mm")),
    Sketcher.Constraint("DistanceY", 0, 3, 1, 3, Q("57 mm")),
    Sketcher.Constraint("DistanceX", 1, 3, 2, 3, Q("97 mm")),
])
pocket5 = body.newObject("PartDesign::Pocket", "Pocket004")
pocket5.Profile = sketch8
pocket5.Type = "ThroughAll"
pocket5.Reversed = True
doc.recompute()

fillet2 = body.newObject("PartDesign::Fillet", "Fillet001")
fillet2.Base = (pocket5, edges_at(pocket5, [
    (-45.116, 0, -33.5),
    (52.036, 0, -32.036),
    (53.5, 0, -25.175),
    (52.036, 0, 32.036),
    (-45.116, 0, 33.5),
    (-52.036, 0, 32.036),
    (-53.5, 0, -25.175),
    (-52.036, 0, -32.036),
    (37.691, 0, 29.5),
    (45.116, 0, 33.5),
    (45.5, 0, 0),
    (49.5, 0, 17.809),
    (53.5, 0, 25.175),
    (0, 0, 25.5),
    (-37.691, 0, 29.5),
    (-53.5, 0, 25.175),
    (-49.5, 0, 17.809),
    (-45.5, 0, 0),
    (-49.5, 0, -17.809),
    (-37.691, 0, -29.5),
    (0, 0, -25.5),
    (37.691, 0, -29.5),
    (45.116, 0, -33.5),
    (49.5, 0, -17.809),
    (-53.098, 0, -20.351),
    (53.098, 0, -20.351),
    (-53.098, 0, 20.351),
    (53.098, 0, 20.351),
    (-40.232, 0, -33.098),
    (40.232, 0, -33.098),
    (-40.232, 0, 33.098),
    (40.232, 0, 33.098),
    (35.149, 0, 25.902),
    (-35.149, 0, 25.902),
    (35.149, 0, -25.902),
    (-35.149, 0, -25.902),
    (45.902, 0, 15.268),
    (-45.902, 0, 15.268),
    (45.902, 0, -15.268),
    (-45.902, 0, -15.268),
]))
fillet2.Radius = 1

# Sketch on YZ plane
sketch9 = body.newObject("Sketcher::SketchObject", "Sketch008")
sketch9.AttachmentSupport = (doc.getObject("YZ_Plane"), [""])
sketch9.MapMode = "FlatFace"
sketch9.AttachmentOffset = App.Placement(Vector(0, 0, -45.5), App.Rotation())
sketch9.addGeometry([
    Part.LineSegment(Vector(10.4, 2.5, 0), Vector(9.1, 2.5, 0)),
    Part.LineSegment(Vector(9.1, 2.5, 0), Vector(9.1, 13.3, 0)),
    Part.LineSegment(Vector(9.1, 13.3, 0), Vector(10.4, 13.3, 0)),
    Part.LineSegment(Vector(10.4, 13.3, 0), Vector(10.4, 2.5, 0)),
], False)
sketch9.addConstraint([
    Sketcher.Constraint("Coincident", 0, 2, 1, 1),
    Sketcher.Constraint("Coincident", 1, 2, 2, 1),
    Sketcher.Constraint("Coincident", 2, 2, 3, 1),
    Sketcher.Constraint("Coincident", 3, 2, 0, 1),
    Sketcher.Constraint("Horizontal", 0),
    Sketcher.Constraint("Vertical", 1),
    Sketcher.Constraint("Horizontal", 2),
    Sketcher.Constraint("Vertical", 3),
    Sketcher.Constraint("DistanceY", 1, 1, 1, 2, Q("10.8 mm")),
    Sketcher.Constraint("DistanceX", 0, 2, 0, 1, Q("1.35 mm")),
    Sketcher.Constraint("DistanceY", -1, 1, 0, 2, Q("2.5 mm")),
    Sketcher.Constraint("DistanceX", -1, 1, 2, 2, Q("10.4 mm")),
])
pocket6 = body.newObject("PartDesign::Pocket", "Pocket005")
pocket6.Profile = sketch9
pocket6.Length = 2
pocket6.Reversed = True
doc.recompute()

fillet3 = body.newObject("PartDesign::Fillet", "Fillet002")
fillet3.Base = (pocket6, edges_at(pocket6, [(-44.5, 9.05, 13.3), (-44.5, 9.05, 2.5)]))
fillet3.Radius = 1
doc.recompute()

fillet4 = body.newObject("PartDesign::Fillet", "Fillet003")
fillet4.Base = (fillet3, edges_at(fillet3, [(-44.5, 10.4, 2.5), (-44.5, 10.4, 13.3)]))
fillet4.Radius = 0.5

doc.recompute()
